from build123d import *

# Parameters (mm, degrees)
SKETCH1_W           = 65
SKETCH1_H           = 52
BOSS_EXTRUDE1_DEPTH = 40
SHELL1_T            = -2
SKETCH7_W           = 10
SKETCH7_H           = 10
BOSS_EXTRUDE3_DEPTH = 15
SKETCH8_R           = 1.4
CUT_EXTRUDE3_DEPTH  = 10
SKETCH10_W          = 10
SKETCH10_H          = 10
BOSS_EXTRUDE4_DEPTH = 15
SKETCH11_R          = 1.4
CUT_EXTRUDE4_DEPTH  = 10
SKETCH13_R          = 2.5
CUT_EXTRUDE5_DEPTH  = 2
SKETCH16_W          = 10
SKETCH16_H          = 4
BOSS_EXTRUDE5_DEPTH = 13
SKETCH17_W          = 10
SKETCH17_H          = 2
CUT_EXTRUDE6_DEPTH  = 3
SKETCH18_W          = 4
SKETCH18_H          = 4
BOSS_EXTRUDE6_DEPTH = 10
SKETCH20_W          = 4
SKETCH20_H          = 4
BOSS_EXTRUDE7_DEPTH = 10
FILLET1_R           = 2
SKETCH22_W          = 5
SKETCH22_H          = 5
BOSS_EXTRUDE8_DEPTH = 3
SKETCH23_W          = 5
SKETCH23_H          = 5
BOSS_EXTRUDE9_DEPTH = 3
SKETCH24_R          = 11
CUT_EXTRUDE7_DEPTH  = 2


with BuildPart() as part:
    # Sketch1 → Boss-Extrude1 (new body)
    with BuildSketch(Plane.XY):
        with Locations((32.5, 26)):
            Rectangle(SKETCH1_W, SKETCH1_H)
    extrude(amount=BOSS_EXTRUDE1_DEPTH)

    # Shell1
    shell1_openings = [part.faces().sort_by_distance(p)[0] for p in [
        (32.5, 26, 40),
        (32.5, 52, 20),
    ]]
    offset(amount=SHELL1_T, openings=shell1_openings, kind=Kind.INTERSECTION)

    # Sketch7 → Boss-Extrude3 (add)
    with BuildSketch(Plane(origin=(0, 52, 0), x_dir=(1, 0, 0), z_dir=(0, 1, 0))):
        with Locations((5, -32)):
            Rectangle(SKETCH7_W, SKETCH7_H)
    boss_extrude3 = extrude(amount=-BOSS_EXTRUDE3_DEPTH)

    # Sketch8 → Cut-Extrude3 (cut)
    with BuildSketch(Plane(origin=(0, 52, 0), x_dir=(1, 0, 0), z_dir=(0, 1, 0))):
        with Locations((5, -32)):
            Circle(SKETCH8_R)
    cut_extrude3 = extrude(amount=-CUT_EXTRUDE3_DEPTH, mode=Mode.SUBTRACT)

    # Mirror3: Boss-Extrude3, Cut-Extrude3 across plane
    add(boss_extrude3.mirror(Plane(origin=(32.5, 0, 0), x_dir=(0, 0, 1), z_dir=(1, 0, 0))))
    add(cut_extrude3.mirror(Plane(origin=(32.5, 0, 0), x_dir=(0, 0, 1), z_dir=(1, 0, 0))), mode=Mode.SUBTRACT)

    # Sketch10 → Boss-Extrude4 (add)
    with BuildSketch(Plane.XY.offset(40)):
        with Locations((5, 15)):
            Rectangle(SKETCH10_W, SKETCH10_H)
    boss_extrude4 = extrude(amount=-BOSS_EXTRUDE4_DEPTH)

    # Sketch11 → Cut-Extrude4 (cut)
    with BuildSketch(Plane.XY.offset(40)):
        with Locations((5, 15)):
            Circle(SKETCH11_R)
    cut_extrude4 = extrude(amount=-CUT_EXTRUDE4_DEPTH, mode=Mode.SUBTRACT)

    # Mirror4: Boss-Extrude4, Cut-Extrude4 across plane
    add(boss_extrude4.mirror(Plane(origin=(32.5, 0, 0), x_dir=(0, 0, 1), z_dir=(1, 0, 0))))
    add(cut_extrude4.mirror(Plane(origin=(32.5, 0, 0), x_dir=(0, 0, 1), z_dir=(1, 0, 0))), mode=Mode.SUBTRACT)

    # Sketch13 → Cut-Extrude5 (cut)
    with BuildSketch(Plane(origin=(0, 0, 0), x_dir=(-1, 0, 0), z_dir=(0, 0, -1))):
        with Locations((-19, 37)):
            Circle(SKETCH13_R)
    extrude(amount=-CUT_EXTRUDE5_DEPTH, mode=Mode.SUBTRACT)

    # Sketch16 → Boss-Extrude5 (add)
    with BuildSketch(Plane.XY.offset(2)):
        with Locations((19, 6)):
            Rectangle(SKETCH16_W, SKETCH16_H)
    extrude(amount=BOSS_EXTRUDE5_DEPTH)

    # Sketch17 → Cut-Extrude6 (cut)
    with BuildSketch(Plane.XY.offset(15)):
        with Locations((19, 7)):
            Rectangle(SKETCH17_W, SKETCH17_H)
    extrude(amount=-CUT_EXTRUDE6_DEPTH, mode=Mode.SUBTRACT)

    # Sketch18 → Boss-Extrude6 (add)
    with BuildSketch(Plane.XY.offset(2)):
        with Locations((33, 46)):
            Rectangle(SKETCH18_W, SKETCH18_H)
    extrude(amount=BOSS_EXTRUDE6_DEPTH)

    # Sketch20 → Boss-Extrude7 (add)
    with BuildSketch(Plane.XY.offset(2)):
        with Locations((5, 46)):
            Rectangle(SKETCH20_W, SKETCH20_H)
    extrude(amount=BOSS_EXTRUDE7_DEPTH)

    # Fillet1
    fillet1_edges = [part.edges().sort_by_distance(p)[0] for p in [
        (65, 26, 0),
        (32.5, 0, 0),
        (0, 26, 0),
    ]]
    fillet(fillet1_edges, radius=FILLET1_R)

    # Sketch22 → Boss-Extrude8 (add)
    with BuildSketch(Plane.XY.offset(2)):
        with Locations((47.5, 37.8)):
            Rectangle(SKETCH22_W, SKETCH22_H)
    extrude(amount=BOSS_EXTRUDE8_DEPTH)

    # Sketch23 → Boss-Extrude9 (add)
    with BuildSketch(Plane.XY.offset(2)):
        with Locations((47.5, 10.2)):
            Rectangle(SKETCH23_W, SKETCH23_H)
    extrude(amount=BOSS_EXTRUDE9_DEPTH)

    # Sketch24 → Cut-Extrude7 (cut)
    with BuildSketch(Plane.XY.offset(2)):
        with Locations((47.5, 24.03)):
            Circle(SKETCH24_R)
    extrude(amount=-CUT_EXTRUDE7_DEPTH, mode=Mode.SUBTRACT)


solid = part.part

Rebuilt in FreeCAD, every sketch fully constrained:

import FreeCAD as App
import Part
import Sketcher


def edges_at(feature, points):
    """Names of the edges that pass closest to the given points."""
    edges = feature.Shape.Edges
    near = lambda p: min(range(len(edges)), key=lambda i: edges[i].distToShape(Part.Vertex(*p))[0])
    return sorted({f"Edge{near(p) + 1}" for p in points})


def faces_at(feature, points):
    """Names of the faces that lie closest to the given points."""
    faces = feature.Shape.Faces
    near = lambda p: min(range(len(faces)), key=lambda i: faces[i].distToShape(Part.Vertex(*p))[0])
    return sorted({f"Face{near(p) + 1}" for p in points})


def add_polygon(sketch, points):
    """Adds a closed chain of lines whose ends are joined by coincident constraints."""
    first, n = sketch.GeometryCount, len(points)
    for a, b in zip(points, points[1:] + points[:1]):
        sketch.addGeometry(Part.LineSegment(App.Vector(*a, 0), App.Vector(*b, 0)), False)
    for i in range(n):
        sketch.addConstraint(Sketcher.Constraint("Coincident", first + i, 2, first + (i + 1) % n, 1))

doc = App.newDocument("Part")
body = doc.addObject("PartDesign::Body", "Body")

# Sketch on XY plane
sketch1 = doc.addObject("Sketcher::SketchObject", "Sketch")
body.addObject(sketch1)
sketch1.AttachmentSupport = (doc.XY_Plane, [""])
sketch1.MapMode = "FlatFace"
add_polygon(sketch1, [(0, 52), (0, 0), (65, 0), (65, 52)])  # lines 0-3
sketch1.addConstraint(Sketcher.Constraint("Vertical", 0))
sketch1.addConstraint(Sketcher.Constraint("Horizontal", 1))
sketch1.addConstraint(Sketcher.Constraint("Vertical", 2))
sketch1.addConstraint(Sketcher.Constraint("Horizontal", 3))
sketch1.addConstraint(Sketcher.Constraint("Coincident", 0, 2, -1, 1))
sketch1.addConstraint(Sketcher.Constraint("DistanceX", 1, 1, 1, 2, 65.0))
sketch1.addConstraint(Sketcher.Constraint("DistanceY", 0, 2, 0, 1, 52.0))
pad1 = doc.addObject("PartDesign::Pad", "Pad")
body.addObject(pad1)
pad1.Profile = sketch1
pad1.Length = 40
doc.recompute()

thickness = doc.addObject("PartDesign::Thickness", "Thickness")
body.addObject(thickness)
thickness.Base = (pad1, faces_at(pad1, [(32.5, 26, 40), (32.5, 52, 20)]))
thickness.Value = 2
thickness.Reversed = True
thickness.Join = "Intersection"

# Sketch on XZ plane
sketch2 = doc.addObject("Sketcher::SketchObject", "Sketch001")
body.addObject(sketch2)
sketch2.AttachmentSupport = (doc.XZ_Plane, [""])
sketch2.MapMode = "FlatFace"
sketch2.AttachmentOffset = App.Placement(App.Vector(0, 0, -52), App.Rotation())
add_polygon(sketch2, [(0, 27), (0, 37), (10, 37), (10, 27)])  # lines 0-3
sketch2.addConstraint(Sketcher.Constraint("Vertical", 0))
sketch2.addConstraint(Sketcher.Constraint("Horizontal", 1))
sketch2.addConstraint(Sketcher.Constraint("Vertical", 2))
sketch2.addConstraint(Sketcher.Constraint("Horizontal", 3))
sketch2.addConstraint(Sketcher.Constraint("PointOnObject", 0, 2, -2))
sketch2.addConstraint(Sketcher.Constraint("Equal", 3, 0))
sketch2.addConstraint(Sketcher.Constraint("DistanceX", 1, 1, 1, 2, 10.0))
sketch2.addConstraint(Sketcher.Constraint("DistanceY", -1, 1, 0, 2, 37.0))
pad2 = doc.addObject("PartDesign::Pad", "Pad001")
body.addObject(pad2)
pad2.Profile = sketch2
pad2.Length = 15

# Sketch on XZ plane
sketch3 = doc.addObject("Sketcher::SketchObject", "Sketch002")
body.addObject(sketch3)
sketch3.AttachmentSupport = (doc.XZ_Plane, [""])
sketch3.MapMode = "FlatFace"
sketch3.AttachmentOffset = App.Placement(App.Vector(0, 0, -52), App.Rotation())
sketch3.addGeometry(Part.Circle(App.Vector(5, 32, 0), App.Vector(0, 0, 1), 1.4), False)
sketch3.addConstraint(Sketcher.Constraint("Diameter", 0, 2.8))
sketch3.addConstraint(Sketcher.Constraint("DistanceX", -1, 1, 0, 3, 5.0))
sketch3.addConstraint(Sketcher.Constraint("DistanceY", -1, 1, 0, 3, 32.0))
pocket1 = doc.addObject("PartDesign::Pocket", "Pocket")
body.addObject(pocket1)
pocket1.Profile = sketch3
pocket1.Length = 10
pocket1.Reversed = True
doc.recompute()

datumplane = doc.addObject("PartDesign::Plane", "DatumPlane")
body.addObject(datumplane)
datumplane.AttachmentSupport = (doc.YZ_Plane, [""])
datumplane.MapMode = "FlatFace"
datumplane.AttachmentOffset = App.Placement(App.Vector(0, 0, 32.5), App.Rotation())
mirrored = doc.addObject("PartDesign::Mirrored", "Mirrored")
body.addObject(mirrored)
mirrored.Originals = [pad2, pocket1]
mirrored.MirrorPlane = (datumplane, [""])
body.Tip = mirrored

# Sketch on XY plane
sketch4 = doc.addObject("Sketcher::SketchObject", "Sketch003")
body.addObject(sketch4)
sketch4.AttachmentSupport = (doc.XY_Plane, [""])
sketch4.MapMode = "FlatFace"
sketch4.AttachmentOffset = App.Placement(App.Vector(0, 0, 40), App.Rotation())
add_polygon(sketch4, [(0, 20), (0, 10), (10, 10), (10, 20)])  # lines 0-3
sketch4.addConstraint(Sketcher.Constraint("Vertical", 0))
sketch4.addConstraint(Sketcher.Constraint("Horizontal", 1))
sketch4.addConstraint(Sketcher.Constraint("Vertical", 2))
sketch4.addConstraint(Sketcher.Constraint("Horizontal", 3))
sketch4.addConstraint(Sketcher.Constraint("PointOnObject", 0, 2, -2))
sketch4.addConstraint(Sketcher.Constraint("Equal", 3, 0))
sketch4.addConstraint(Sketcher.Constraint("DistanceX", 1, 1, 1, 2, 10.0))
sketch4.addConstraint(Sketcher.Constraint("DistanceY", -1, 1, 0, 2, 10.0))
pad3 = doc.addObject("PartDesign::Pad", "Pad002")
body.addObject(pad3)
pad3.Profile = sketch4
pad3.Length = 15
pad3.Reversed = True

# Sketch on XY plane
sketch5 = doc.addObject("Sketcher::SketchObject", "Sketch004")
body.addObject(sketch5)
sketch5.AttachmentSupport = (doc.XY_Plane, [""])
sketch5.MapMode = "FlatFace"
sketch5.AttachmentOffset = App.Placement(App.Vector(0, 0, 40), App.Rotation())
sketch5.addGeometry(Part.Circle(App.Vector(5, 15, 0), App.Vector(0, 0, 1), 1.4), False)
sketch5.addConstraint(Sketcher.Constraint("Diameter", 0, 2.8))
sketch5.addConstraint(Sketcher.Constraint("DistanceX", -1, 1, 0, 3, 5.0))
sketch5.addConstraint(Sketcher.Constraint("DistanceY", -1, 1, 0, 3, 15.0))
pocket2 = doc.addObject("PartDesign::Pocket", "Pocket001")
body.addObject(pocket2)
pocket2.Profile = sketch5
pocket2.Length = 10
doc.recompute()

datumplane2 = doc.addObject("PartDesign::Plane", "DatumPlane001")
body.addObject(datumplane2)
datumplane2.AttachmentSupport = (doc.YZ_Plane, [""])
datumplane2.MapMode = "FlatFace"
datumplane2.AttachmentOffset = App.Placement(App.Vector(0, 0, 32.5), App.Rotation())
mirrored2 = doc.addObject("PartDesign::Mirrored", "Mirrored001")
body.addObject(mirrored2)
mirrored2.Originals = [pad3, pocket2]
mirrored2.MirrorPlane = (datumplane2, [""])
body.Tip = mirrored2

# Sketch on XY plane
sketch6 = doc.addObject("Sketcher::SketchObject", "Sketch005")
body.addObject(sketch6)
sketch6.AttachmentSupport = (doc.XY_Plane, [""])
sketch6.MapMode = "FlatFace"
sketch6.addGeometry(Part.Circle(App.Vector(19, 37, 0), App.Vector(0, 0, 1), 2.5), False)
sketch6.addConstraint(Sketcher.Constraint("Diameter", 0, 5.0))
sketch6.addConstraint(Sketcher.Constraint("DistanceX", -1, 1, 0, 3, 19.0))
sketch6.addConstraint(Sketcher.Constraint("DistanceY", -1, 1, 0, 3, 37.0))
pocket3 = doc.addObject("PartDesign::Pocket", "Pocket002")
body.addObject(pocket3)
pocket3.Profile = sketch6
pocket3.Length = 2
pocket3.Reversed = True

# Sketch on XY plane
sketch7 = doc.addObject("Sketcher::SketchObject", "Sketch006")
body.addObject(sketch7)
sketch7.AttachmentSupport = (doc.XY_Plane, [""])
sketch7.MapMode = "FlatFace"
sketch7.AttachmentOffset = App.Placement(App.Vector(0, 0, 2), App.Rotation())
add_polygon(sketch7, [(14, 8), (14, 4), (24, 4), (24, 8)])  # lines 0-3
sketch7.addConstraint(Sketcher.Constraint("Vertical", 0))
sketch7.addConstraint(Sketcher.Constraint("Horizontal", 1))
sketch7.addConstraint(Sketcher.Constraint("Vertical", 2))
sketch7.addConstraint(Sketcher.Constraint("Horizontal", 3))
sketch7.addConstraint(Sketcher.Constraint("DistanceX", 1, 1, 1, 2, 10.0))
sketch7.addConstraint(Sketcher.Constraint("DistanceY", 0, 2, 0, 1, 4.0))
sketch7.addConstraint(Sketcher.Constraint("DistanceX", -1, 1, 0, 2, 14.0))
sketch7.addConstraint(Sketcher.Constraint("DistanceY", -1, 1, 0, 2, 4.0))
pad4 = doc.addObject("PartDesign::Pad", "Pad003")
body.addObject(pad4)
pad4.Profile = sketch7
pad4.Length = 13

# Sketch on XY plane
sketch8 = doc.addObject("Sketcher::SketchObject", "Sketch007")
body.addObject(sketch8)
sketch8.AttachmentSupport = (doc.XY_Plane, [""])
sketch8.MapMode = "FlatFace"
sketch8.AttachmentOffset = App.Placement(App.Vector(0, 0, 15), App.Rotation())
add_polygon(sketch8, [(14, 8), (14, 6), (24, 6), (24, 8)])  # lines 0-3
sketch8.addConstraint(Sketcher.Constraint("Vertical", 0))
sketch8.addConstraint(Sketcher.Constraint("Horizontal", 1))
sketch8.addConstraint(Sketcher.Constraint("Vertical", 2))
sketch8.addConstraint(Sketcher.Constraint("Horizontal", 3))
sketch8.addConstraint(Sketcher.Constraint("DistanceX", 1, 1, 1, 2, 10.0))
sketch8.addConstraint(Sketcher.Constraint("DistanceY", 0, 2, 0, 1, 2.0))
sketch8.addConstraint(Sketcher.Constraint("DistanceX", -1, 1, 0, 2, 14.0))
sketch8.addConstraint(Sketcher.Constraint("DistanceY", -1, 1, 0, 2, 6.0))
pocket4 = doc.addObject("PartDesign::Pocket", "Pocket003")
body.addObject(pocket4)
pocket4.Profile = sketch8
pocket4.Length = 3

# Sketch on XY plane
sketch9 = doc.addObject("Sketcher::SketchObject", "Sketch008")
body.addObject(sketch9)
sketch9.AttachmentSupport = (doc.XY_Plane, [""])
sketch9.MapMode = "FlatFace"
sketch9.AttachmentOffset = App.Placement(App.Vector(0, 0, 2), App.Rotation())
add_polygon(sketch9, [(31, 48), (31, 44), (35, 44), (35, 48)])  # lines 0-3
sketch9.addConstraint(Sketcher.Constraint("Vertical", 0))
sketch9.addConstraint(Sketcher.Constraint("Horizontal", 1))
sketch9.addConstraint(Sketcher.Constraint("Vertical", 2))
sketch9.addConstraint(Sketcher.Constraint("Horizontal", 3))
sketch9.addConstraint(Sketcher.Constraint("Equal", 3, 0))
sketch9.addConstraint(Sketcher.Constraint("DistanceX", 1, 1, 1, 2, 4.0))
sketch9.addConstraint(Sketcher.Constraint("DistanceX", -1, 1, 0, 2, 31.0))
sketch9.addConstraint(Sketcher.Constraint("DistanceY", -1, 1, 0, 2, 44.0))
pad5 = doc.addObject("PartDesign::Pad", "Pad004")
body.addObject(pad5)
pad5.Profile = sketch9
pad5.Length = 10

# Sketch on XY plane
sketch10 = doc.addObject("Sketcher::SketchObject", "Sketch009")
body.addObject(sketch10)
sketch10.AttachmentSupport = (doc.XY_Plane, [""])
sketch10.MapMode = "FlatFace"
sketch10.AttachmentOffset = App.Placement(App.Vector(0, 0, 2), App.Rotation())
add_polygon(sketch10, [(3, 48), (3, 44), (7, 44), (7, 48)])  # lines 0-3
sketch10.addConstraint(Sketcher.Constraint("Vertical", 0))
sketch10.addConstraint(Sketcher.Constraint("Horizontal", 1))
sketch10.addConstraint(Sketcher.Constraint("Vertical", 2))
sketch10.addConstraint(Sketcher.Constraint("Horizontal", 3))
sketch10.addConstraint(Sketcher.Constraint("Equal", 3, 0))
sketch10.addConstraint(Sketcher.Constraint("DistanceX", 1, 1, 1, 2, 4.0))
sketch10.addConstraint(Sketcher.Constraint("DistanceX", -1, 1, 0, 2, 3.0))
sketch10.addConstraint(Sketcher.Constraint("DistanceY", -1, 1, 0, 2, 44.0))
pad6 = doc.addObject("PartDesign::Pad", "Pad005")
body.addObject(pad6)
pad6.Profile = sketch10
pad6.Length = 10
doc.recompute()

fillet = doc.addObject("PartDesign::Fillet", "Fillet")
body.addObject(fillet)
fillet.Base = (pad6, edges_at(pad6, [(65, 26, 0), (32.5, 0, 0), (0, 26, 0)]))
fillet.Radius = 2

# Sketch on XY plane
sketch11 = doc.addObject("Sketcher::SketchObject", "Sketch010")
body.addObject(sketch11)
sketch11.AttachmentSupport = (doc.XY_Plane, [""])
sketch11.MapMode = "FlatFace"
sketch11.AttachmentOffset = App.Placement(App.Vector(0, 0, 2), App.Rotation())
add_polygon(sketch11, [(45, 40), (45, 35), (50, 35), (50, 40)])  # lines 0-3
sketch11.addConstraint(Sketcher.Constraint("Vertical", 0))
sketch11.addConstraint(Sketcher.Constraint("Horizontal", 1))
sketch11.addConstraint(Sketcher.Constraint("Vertical", 2))
sketch11.addConstraint(Sketcher.Constraint("Horizontal", 3))
sketch11.addConstraint(Sketcher.Constraint("Equal", 3, 0))
sketch11.addConstraint(Sketcher.Constraint("DistanceX", 1, 1, 1, 2, 5.0))
sketch11.addConstraint(Sketcher.Constraint("DistanceX", -1, 1, 0, 2, 45.0))
sketch11.addConstraint(Sketcher.Constraint("DistanceY", -1, 1, 0, 2, 35.3))
pad7 = doc.addObject("PartDesign::Pad", "Pad006")
body.addObject(pad7)
pad7.Profile = sketch11
pad7.Length = 3

# Sketch on XY plane
sketch12 = doc.addObject("Sketcher::SketchObject", "Sketch011")
body.addObject(sketch12)
sketch12.AttachmentSupport = (doc.XY_Plane, [""])
sketch12.MapMode = "FlatFace"
sketch12.AttachmentOffset = App.Placement(App.Vector(0, 0, 2), App.Rotation())
add_polygon(sketch12, [(45, 12.7), (45, 7.7), (50, 7.7), (50, 12.7)])  # lines 0-3
sketch12.addConstraint(Sketcher.Constraint("Vertical", 0))
sketch12.addConstraint(Sketcher.Constraint("Horizontal", 1))
sketch12.addConstraint(Sketcher.Constraint("Vertical", 2))
sketch12.addConstraint(Sketcher.Constraint("Horizontal", 3))
sketch12.addConstraint(Sketcher.Constraint("Equal", 3, 0))
sketch12.addConstraint(Sketcher.Constraint("DistanceX", 1, 1, 1, 2, 5.0))
sketch12.addConstraint(Sketcher.Constraint("DistanceX", -1, 1, 0, 2, 45.0))
sketch12.addConstraint(Sketcher.Constraint("DistanceY", -1, 1, 0, 2, 7.7))
pad8 = doc.addObject("PartDesign::Pad", "Pad007")
body.addObject(pad8)
pad8.Profile = sketch12
pad8.Length = 3

# Sketch on XY plane
sketch13 = doc.addObject("Sketcher::SketchObject", "Sketch012")
body.addObject(sketch13)
sketch13.AttachmentSupport = (doc.XY_Plane, [""])
sketch13.MapMode = "FlatFace"
sketch13.AttachmentOffset = App.Placement(App.Vector(0, 0, 2), App.Rotation())
sketch13.addGeometry(Part.Circle(App.Vector(48, 24, 0), App.Vector(0, 0, 1), 11), False)
sketch13.addConstraint(Sketcher.Constraint("Diameter", 0, 22.0))
sketch13.addConstraint(Sketcher.Constraint("DistanceX", -1, 1, 0, 3, 47.5))
sketch13.addConstraint(Sketcher.Constraint("DistanceY", -1, 1, 0, 3, 24.03))
pocket5 = doc.addObject("PartDesign::Pocket", "Pocket004")
body.addObject(pocket5)
pocket5.Profile = sketch13
pocket5.Length = 2

doc.recompute()
